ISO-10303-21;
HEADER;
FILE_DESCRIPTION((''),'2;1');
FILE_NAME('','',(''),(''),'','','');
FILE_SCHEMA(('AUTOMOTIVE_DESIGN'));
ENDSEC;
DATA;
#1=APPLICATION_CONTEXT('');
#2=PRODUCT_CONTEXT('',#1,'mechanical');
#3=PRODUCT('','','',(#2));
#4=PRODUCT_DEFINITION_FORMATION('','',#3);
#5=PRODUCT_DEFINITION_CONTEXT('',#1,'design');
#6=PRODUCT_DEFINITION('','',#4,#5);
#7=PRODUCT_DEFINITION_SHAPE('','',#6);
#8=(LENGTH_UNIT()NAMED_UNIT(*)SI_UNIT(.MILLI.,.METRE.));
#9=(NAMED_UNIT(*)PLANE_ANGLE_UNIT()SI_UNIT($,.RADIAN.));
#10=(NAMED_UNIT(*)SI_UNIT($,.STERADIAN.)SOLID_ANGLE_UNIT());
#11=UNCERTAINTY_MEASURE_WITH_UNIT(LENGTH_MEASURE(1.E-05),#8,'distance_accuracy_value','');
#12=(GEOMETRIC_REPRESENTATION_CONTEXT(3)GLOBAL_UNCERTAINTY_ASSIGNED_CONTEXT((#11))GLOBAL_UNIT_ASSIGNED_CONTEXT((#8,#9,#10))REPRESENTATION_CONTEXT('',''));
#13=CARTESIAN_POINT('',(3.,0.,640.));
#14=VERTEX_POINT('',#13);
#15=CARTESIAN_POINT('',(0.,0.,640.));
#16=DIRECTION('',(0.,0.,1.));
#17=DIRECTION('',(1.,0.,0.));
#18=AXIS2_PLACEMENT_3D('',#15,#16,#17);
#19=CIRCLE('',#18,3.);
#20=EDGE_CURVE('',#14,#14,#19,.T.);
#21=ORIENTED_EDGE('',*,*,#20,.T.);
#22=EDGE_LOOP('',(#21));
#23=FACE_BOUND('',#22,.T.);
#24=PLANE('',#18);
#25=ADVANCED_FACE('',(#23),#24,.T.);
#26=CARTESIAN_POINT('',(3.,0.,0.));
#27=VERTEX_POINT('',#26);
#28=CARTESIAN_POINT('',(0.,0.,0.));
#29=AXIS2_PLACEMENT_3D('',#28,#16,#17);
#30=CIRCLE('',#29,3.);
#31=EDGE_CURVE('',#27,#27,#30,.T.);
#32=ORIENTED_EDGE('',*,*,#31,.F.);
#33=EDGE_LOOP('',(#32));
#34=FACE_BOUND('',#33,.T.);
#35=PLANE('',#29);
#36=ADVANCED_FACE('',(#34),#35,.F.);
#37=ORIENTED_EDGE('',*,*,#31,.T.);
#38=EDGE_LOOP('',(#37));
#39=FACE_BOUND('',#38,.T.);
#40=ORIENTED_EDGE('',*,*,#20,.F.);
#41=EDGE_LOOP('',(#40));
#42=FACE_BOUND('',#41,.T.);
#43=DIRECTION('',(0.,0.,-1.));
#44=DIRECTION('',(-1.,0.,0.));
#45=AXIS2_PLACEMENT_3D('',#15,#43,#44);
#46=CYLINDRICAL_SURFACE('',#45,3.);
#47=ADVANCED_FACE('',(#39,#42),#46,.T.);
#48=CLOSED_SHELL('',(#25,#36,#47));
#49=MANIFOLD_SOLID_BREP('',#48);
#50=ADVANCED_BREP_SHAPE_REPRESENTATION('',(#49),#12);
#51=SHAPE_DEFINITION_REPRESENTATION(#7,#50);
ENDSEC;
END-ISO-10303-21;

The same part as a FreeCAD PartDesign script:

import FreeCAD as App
import Part
import Sketcher

V = App.Vector
Q = App.Units.Quantity

doc = App.newDocument("Part")
body = doc.addObject("PartDesign::Body", "Body")

# Sketch on XY plane
sketch1 = doc.addObject("Sketcher::SketchObject", "Sketch")
body.addObject(sketch1)
sketch1.AttachmentSupport = (doc.XY_Plane, [""])
sketch1.MapMode = "FlatFace"
sketch1.addGeometry(Part.Circle(V(0, 0, 0), V(0, 0, 1), 3), False)
sketch1.addConstraint([
    Sketcher.Constraint("Coincident", 0, 3, -1, 1),
    Sketcher.Constraint("Diameter", 0, Q("6 mm")),
])
pad1 = doc.addObject("PartDesign::Pad", "Pad")
body.addObject(pad1)
pad1.Profile = sketch1
pad1.Length = 640

doc.recompute()
